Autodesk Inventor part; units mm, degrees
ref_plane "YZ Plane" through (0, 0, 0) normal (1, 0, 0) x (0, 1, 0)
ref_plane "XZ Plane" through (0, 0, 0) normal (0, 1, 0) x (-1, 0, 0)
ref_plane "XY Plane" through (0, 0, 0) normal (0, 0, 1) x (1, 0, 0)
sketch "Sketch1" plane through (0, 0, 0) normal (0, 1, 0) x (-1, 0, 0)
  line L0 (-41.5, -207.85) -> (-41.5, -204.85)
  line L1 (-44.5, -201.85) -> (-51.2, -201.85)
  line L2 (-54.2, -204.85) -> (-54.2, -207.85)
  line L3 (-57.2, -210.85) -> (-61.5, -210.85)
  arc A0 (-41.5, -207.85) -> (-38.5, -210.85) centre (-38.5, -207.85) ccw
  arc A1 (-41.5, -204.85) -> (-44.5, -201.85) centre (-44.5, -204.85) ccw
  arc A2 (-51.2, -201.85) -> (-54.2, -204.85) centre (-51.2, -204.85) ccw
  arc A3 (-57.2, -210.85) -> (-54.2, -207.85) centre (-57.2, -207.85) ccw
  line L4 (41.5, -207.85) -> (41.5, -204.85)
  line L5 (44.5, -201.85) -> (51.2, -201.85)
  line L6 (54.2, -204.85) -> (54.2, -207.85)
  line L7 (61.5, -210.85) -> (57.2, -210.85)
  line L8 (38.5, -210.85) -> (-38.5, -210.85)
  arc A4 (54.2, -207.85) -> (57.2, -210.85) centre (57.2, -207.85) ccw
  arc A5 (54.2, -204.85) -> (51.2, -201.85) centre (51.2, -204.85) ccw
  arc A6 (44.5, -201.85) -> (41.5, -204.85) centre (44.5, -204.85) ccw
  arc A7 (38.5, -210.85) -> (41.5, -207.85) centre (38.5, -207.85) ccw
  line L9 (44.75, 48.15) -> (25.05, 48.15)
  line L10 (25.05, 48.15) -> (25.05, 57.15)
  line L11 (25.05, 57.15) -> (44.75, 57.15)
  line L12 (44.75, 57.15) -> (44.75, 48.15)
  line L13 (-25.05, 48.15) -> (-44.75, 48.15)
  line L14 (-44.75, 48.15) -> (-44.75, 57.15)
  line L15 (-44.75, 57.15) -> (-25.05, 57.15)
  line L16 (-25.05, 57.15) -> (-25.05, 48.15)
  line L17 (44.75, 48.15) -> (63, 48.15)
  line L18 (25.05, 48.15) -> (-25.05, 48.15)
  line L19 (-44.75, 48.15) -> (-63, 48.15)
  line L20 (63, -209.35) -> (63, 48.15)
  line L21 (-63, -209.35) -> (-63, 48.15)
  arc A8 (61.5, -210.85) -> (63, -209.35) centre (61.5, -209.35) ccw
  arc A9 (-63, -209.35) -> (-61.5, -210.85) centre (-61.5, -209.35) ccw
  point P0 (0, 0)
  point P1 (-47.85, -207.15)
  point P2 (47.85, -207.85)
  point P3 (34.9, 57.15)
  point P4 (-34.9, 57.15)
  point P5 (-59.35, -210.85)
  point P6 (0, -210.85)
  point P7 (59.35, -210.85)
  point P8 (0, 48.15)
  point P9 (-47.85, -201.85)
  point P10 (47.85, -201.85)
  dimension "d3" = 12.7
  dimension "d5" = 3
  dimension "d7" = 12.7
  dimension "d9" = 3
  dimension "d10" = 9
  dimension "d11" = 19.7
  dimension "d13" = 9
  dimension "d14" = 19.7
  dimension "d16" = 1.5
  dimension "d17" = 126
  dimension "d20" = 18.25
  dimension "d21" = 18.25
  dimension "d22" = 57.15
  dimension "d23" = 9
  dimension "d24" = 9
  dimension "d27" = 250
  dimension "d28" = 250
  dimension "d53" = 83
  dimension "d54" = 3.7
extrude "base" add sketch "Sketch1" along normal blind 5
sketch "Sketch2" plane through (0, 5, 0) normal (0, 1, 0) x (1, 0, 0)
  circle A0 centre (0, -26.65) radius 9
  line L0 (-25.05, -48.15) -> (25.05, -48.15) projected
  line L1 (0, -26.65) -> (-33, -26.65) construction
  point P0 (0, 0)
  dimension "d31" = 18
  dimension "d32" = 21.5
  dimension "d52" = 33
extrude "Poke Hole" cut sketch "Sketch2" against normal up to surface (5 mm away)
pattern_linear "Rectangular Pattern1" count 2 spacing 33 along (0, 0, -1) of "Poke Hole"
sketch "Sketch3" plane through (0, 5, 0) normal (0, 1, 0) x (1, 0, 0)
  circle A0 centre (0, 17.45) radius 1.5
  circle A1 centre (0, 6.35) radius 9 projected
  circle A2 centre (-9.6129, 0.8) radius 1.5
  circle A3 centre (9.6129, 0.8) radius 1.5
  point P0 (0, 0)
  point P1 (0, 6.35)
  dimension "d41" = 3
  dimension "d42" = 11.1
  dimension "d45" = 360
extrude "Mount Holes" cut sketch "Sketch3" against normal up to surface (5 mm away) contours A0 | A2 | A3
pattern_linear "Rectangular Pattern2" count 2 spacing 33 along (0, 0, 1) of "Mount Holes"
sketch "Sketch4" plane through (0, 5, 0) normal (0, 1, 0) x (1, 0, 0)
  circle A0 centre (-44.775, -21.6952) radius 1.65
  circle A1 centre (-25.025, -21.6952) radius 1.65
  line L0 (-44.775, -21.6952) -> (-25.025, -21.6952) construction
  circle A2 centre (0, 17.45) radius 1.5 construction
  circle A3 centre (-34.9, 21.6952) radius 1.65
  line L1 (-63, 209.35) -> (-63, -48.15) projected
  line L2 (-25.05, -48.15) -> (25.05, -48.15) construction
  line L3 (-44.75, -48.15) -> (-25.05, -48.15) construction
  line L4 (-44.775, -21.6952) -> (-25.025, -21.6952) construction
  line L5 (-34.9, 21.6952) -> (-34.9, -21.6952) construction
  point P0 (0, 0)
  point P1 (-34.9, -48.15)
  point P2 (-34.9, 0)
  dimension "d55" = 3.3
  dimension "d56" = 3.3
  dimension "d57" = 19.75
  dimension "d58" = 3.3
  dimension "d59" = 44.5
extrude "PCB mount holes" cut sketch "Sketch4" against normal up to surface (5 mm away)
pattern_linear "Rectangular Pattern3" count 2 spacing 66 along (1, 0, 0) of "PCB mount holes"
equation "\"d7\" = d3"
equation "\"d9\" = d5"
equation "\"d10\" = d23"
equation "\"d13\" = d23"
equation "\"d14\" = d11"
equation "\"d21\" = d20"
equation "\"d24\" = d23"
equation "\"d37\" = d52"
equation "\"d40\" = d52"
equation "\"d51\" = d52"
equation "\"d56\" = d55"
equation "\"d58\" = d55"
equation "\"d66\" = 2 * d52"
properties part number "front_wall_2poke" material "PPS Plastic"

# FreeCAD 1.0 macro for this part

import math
import FreeCAD as App
import Part
import Sketcher

V = App.Vector
Q = App.Units.Quantity

doc = App.newDocument("Part")
params = doc.addObject("Spreadsheet::Sheet", "Params")
for row, (alias, value) in enumerate([
    ("sketch1_radius", "3 mm"),
    ("sketch1_radius2", "1.5 mm"),
    ("sketch1_height", "3 mm"),
    ("sketch1_height2", "9 mm"),
    ("sketch1_width", "19.7 mm"),
    ("pad1_length", "5 mm"),
    ("sketch2_diameter", "18 mm"),
    ("pocket1_length", "5 mm"),
    ("linearpattern_pitch", "33 mm"),
    ("sketch3_diameter", "3 mm"),
    ("pocket2_length", "5 mm"),
    ("linearpattern2_pitch", "33 mm"),
    ("sketch4_diameter", "3.3 mm"),
    ("pocket3_length", "5 mm"),
    ("linearpattern3_pitch", "66 mm"),
], start=1):
    params.set(f"A{row}", alias)
    params.set(f"B{row}", "=" + value)
    params.setAlias(f"B{row}", alias)

body = doc.addObject("PartDesign::Body", "Body")

# Sketch on XZ plane
sketch1 = body.newObject("Sketcher::SketchObject", "Sketch")
sketch1.AttachmentSupport = (doc.getObject("XZ_Plane"), [""])
sketch1.MapMode = "FlatFace"
sketch1.addGeometry([
    Part.LineSegment(V(41.5, -204.8, 0), V(41.5, -207.8, 0)),  # 0
    Part.ArcOfCircle(Part.Circle(V(38.5, -207.8, 0), V(0, 0, 1), 3), math.radians(-90), math.radians(0)),  # 1
    Part.LineSegment(V(38.5, -210.8, 0), V(-38.5, -210.8, 0)),  # 2
    Part.ArcOfCircle(Part.Circle(V(-38.5, -207.8, 0), V(0, 0, 1), 3), math.radians(180), math.radians(270)),  # 3
    Part.LineSegment(V(-41.5, -207.8, 0), V(-41.5, -204.8, 0)),  # 4
    Part.ArcOfCircle(Part.Circle(V(-44.5, -204.8, 0), V(0, 0, 1), 3), math.radians(0), math.radians(90)),  # 5
    Part.LineSegment(V(-44.5, -201.8, 0), V(-51.2, -201.8, 0)),  # 6
    Part.ArcOfCircle(Part.Circle(V(-51.2, -204.8, 0), V(0, 0, 1), 3), math.radians(90), math.radians(180)),  # 7
    Part.LineSegment(V(-54.2, -204.8, 0), V(-54.2, -207.8, 0)),  # 8
    Part.ArcOfCircle(Part.Circle(V(-57.2, -207.8, 0), V(0, 0, 1), 3), math.radians(-90), math.radians(0)),  # 9
    Part.LineSegment(V(-57.2, -210.8, 0), V(-61.5, -210.8, 0)),  # 10
    Part.ArcOfCircle(Part.Circle(V(-61.5, -209.3, 0), V(0, 0, 1), 1.5), math.radians(180), math.radians(270)),  # 11
    Part.LineSegment(V(-63, -209.3, 0), V(-63, 48.1, 0)),  # 12
    Part.LineSegment(V(-63, 48.1, 0), V(-44.8, 48.1, 0)),  # 13
    Part.LineSegment(V(-44.8, 48.1, 0), V(-44.8, 57.1, 0)),  # 14
    Part.LineSegment(V(-44.8, 57.1, 0), V(-25.1, 57.1, 0)),  # 15
    Part.LineSegment(V(-25.1, 57.1, 0), V(-25.1, 48.1, 0)),  # 16
    Part.LineSegment(V(-25.1, 48.1, 0), V(25.1, 48.1, 0)),  # 17
    Part.LineSegment(V(25.1, 48.1, 0), V(25.1, 57.1, 0)),  # 18
    Part.LineSegment(V(25.1, 57.1, 0), V(44.8, 57.1, 0)),  # 19
    Part.LineSegment(V(44.8, 57.1, 0), V(44.8, 48.1, 0)),  # 20
    Part.LineSegment(V(44.8, 48.1, 0), V(63, 48.1, 0)),  # 21
    Part.LineSegment(V(63, 48.1, 0), V(63, -209.3, 0)),  # 22
    Part.ArcOfCircle(Part.Circle(V(61.5, -209.3, 0), V(0, 0, 1), 1.5), math.radians(-90), math.radians(0)),  # 23
    Part.LineSegment(V(61.5, -210.8, 0), V(57.2, -210.8, 0)),  # 24
    Part.ArcOfCircle(Part.Circle(V(57.2, -207.8, 0), V(0, 0, 1), 3), math.radians(180), math.radians(270)),  # 25
    Part.LineSegment(V(54.2, -207.8, 0), V(54.2, -204.8, 0)),  # 26
    Part.ArcOfCircle(Part.Circle(V(51.2, -204.8, 0), V(0, 0, 1), 3), math.radians(0), math.radians(90)),  # 27
    Part.LineSegment(V(51.2, -201.8, 0), V(44.5, -201.8, 0)),  # 28
    Part.ArcOfCircle(Part.Circle(V(44.5, -204.8, 0), V(0, 0, 1), 3), math.radians(90), math.radians(180)),  # 29
], False)
sketch1.addConstraint([
    Sketcher.Constraint("Tangent", 0, 2, 1, 2),
    Sketcher.Constraint("Tangent", 1, 1, 2, 1),
    Sketcher.Constraint("Tangent", 2, 2, 3, 2),
    Sketcher.Constraint("Tangent", 3, 1, 4, 1),
    Sketcher.Constraint("Tangent", 4, 2, 5, 1),
    Sketcher.Constraint("Tangent", 5, 2, 6, 1),
    Sketcher.Constraint("Tangent", 6, 2, 7, 1),
    Sketcher.Constraint("Tangent", 7, 2, 8, 1),
    Sketcher.Constraint("Tangent", 8, 2, 9, 2),
    Sketcher.Constraint("Tangent", 9, 1, 10, 1),
    Sketcher.Constraint("Tangent", 10, 2, 11, 2),
    Sketcher.Constraint("Tangent", 11, 1, 12, 1),
    Sketcher.Constraint("Coincident", 12, 2, 13, 1),
    Sketcher.Constraint("Coincident", 13, 2, 14, 1),
    Sketcher.Constraint("Coincident", 14, 2, 15, 1),
    Sketcher.Constraint("Coincident", 15, 2, 16, 1),
    Sketcher.Constraint("Coincident", 16, 2, 17, 1),
    Sketcher.Constraint("Coincident", 17, 2, 18, 1),
    Sketcher.Constraint("Coincident", 18, 2, 19, 1),
    Sketcher.Constraint("Coincident", 19, 2, 20, 1),
    Sketcher.Constraint("Coincident", 20, 2, 21, 1),
    Sketcher.Constraint("Coincident", 21, 2, 22, 1),
    Sketcher.Constraint("Tangent", 22, 2, 23, 2),
    Sketcher.Constraint("Tangent", 23, 1, 24, 1),
    Sketcher.Constraint("Tangent", 24, 2, 25, 2),
    Sketcher.Constraint("Tangent", 25, 1, 26, 1),
    Sketcher.Constraint("Tangent", 26, 2, 27, 1),
    Sketcher.Constraint("Tangent", 27, 2, 28, 1),
    Sketcher.Constraint("Tangent", 28, 2, 29, 1),
    Sketcher.Constraint("Tangent", 29, 2, 0, 1),
    Sketcher.Constraint("Vertical", 0),
    Sketcher.Constraint("Horizontal", 2),
    Sketcher.Constraint("Vertical", 4),
    Sketcher.Constraint("Horizontal", 6),
    Sketcher.Constraint("Vertical", 8),
    Sketcher.Constraint("Horizontal", 10),
    Sketcher.Constraint("Vertical", 12),
    Sketcher.Constraint("Horizontal", 13),
    Sketcher.Constraint("Vertical", 14),
    Sketcher.Constraint("Horizontal", 15),
    Sketcher.Constraint("Vertical", 16),
    Sketcher.Constraint("Horizontal", 17),
    Sketcher.Constraint("Vertical", 18),
    Sketcher.Constraint("Horizontal", 19),
    Sketcher.Constraint("Vertical", 20),
    Sketcher.Constraint("Horizontal", 21),
    Sketcher.Constraint("Vertical", 22),
    Sketcher.Constraint("Horizontal", 24),
    Sketcher.Constraint("Vertical", 26),
    Sketcher.Constraint("Horizontal", 28),
    Sketcher.Constraint("Equal", 1, 3),
    Sketcher.Constraint("Equal", 3, 5),
    Sketcher.Constraint("Equal", 5, 7),
    Sketcher.Constraint("Equal", 7, 9),
    Sketcher.Constraint("Equal", 11, 23),
    Sketcher.Constraint("Equal", 9, 25),
    Sketcher.Constraint("Equal", 25, 27),
    Sketcher.Constraint("Equal", 27, 29),
    Sketcher.Constraint("Symmetric", 11, 3, 23, 3, -2),
    Sketcher.Constraint("Symmetric", 7, 3, 27, 3, -2),
    Sketcher.Constraint("Symmetric", 15, 2, 18, 2, -2),
    Sketcher.Constraint("Symmetric", 13, 2, 20, 2, -2),
    Sketcher.Constraint("Horizontal", 3, 3, 9, 3),
    Sketcher.Constraint("Horizontal", 13, 2, 16, 2),
    Sketcher.Constraint("Equal", 6, 28),
    Sketcher.Constraint("Radius", 1, Q("3 mm")),
    Sketcher.Constraint("Radius", 11, Q("1.5 mm")),
    Sketcher.Constraint("DistanceY", 0, 2, 0, 1, Q("3 mm")),
    Sketcher.Constraint("DistanceY", 14, 1, 14, 2, Q("9 mm")),
    Sketcher.Constraint("DistanceX", 15, 1, 15, 2, Q("19.7 mm")),
    Sketcher.Constraint("DistanceX", 5, 3, 1, 3, Q("83 mm")),
    Sketcher.Constraint("DistanceY", 6, 2, 12, 2, Q("250 mm")),
    Sketcher.Constraint("DistanceX", 13, 1, 13, 2, Q("18.25 mm")),
    Sketcher.Constraint("DistanceX", 7, 3, 3, 3, Q("12.7 mm")),
    Sketcher.Constraint("DistanceY", -1, 1, 14, 2, Q("57.15 mm")),
    Sketcher.Constraint("DistanceX", 10, 2, 10, 1, Q("4.3 mm")),
])
sketch1.setExpression("Constraints[65]", "Params.sketch1_radius")
sketch1.setExpression("Constraints[66]", "Params.sketch1_radius2")
sketch1.setExpression("Constraints[67]", "Params.sketch1_height")
sketch1.setExpression("Constraints[68]", "Params.sketch1_height2")
sketch1.setExpression("Constraints[69]", "Params.sketch1_width")
pad1 = body.newObject("PartDesign::Pad", "Pad")
pad1.Profile = sketch1
pad1.setExpression("Length", "Params.pad1_length")
pad1.Reversed = True

# Sketch on XZ plane
sketch2 = body.newObject("Sketcher::SketchObject", "Sketch001")
sketch2.AttachmentSupport = (doc.getObject("XZ_Plane"), [""])
sketch2.MapMode = "FlatFace"
sketch2.AttachmentOffset = App.Placement(V(0, 0, -5), App.Rotation())
sketch2.addGeometry(Part.Circle(V(0, 27, 0), V(0, 0, 1), 9), False)
sketch2.addConstraint([
    Sketcher.Constraint("PointOnObject", 0, 3, -2),
    Sketcher.Constraint("Diameter", 0, Q("18 mm")),
    Sketcher.Constraint("DistanceY", -1, 1, 0, 3, Q("26.65 mm")),
])
sketch2.setExpression("Constraints[1]", "Params.sketch2_diameter")
pocket1 = body.newObject("PartDesign::Pocket", "Pocket")
pocket1.Profile = sketch2
pocket1.setExpression("Length", "Params.pocket1_length")
pocket1.Reversed = True
doc.recompute()

linearpattern = body.newObject("PartDesign::LinearPattern", "LinearPattern")
linearpattern.Originals = [pocket1]
linearpattern.Direction = (doc.getObject("Z_Axis"), [""])
linearpattern.Mode = "offset"
linearpattern.setExpression("Offset", "Params.linearpattern_pitch")
linearpattern.Occurrences = 2
linearpattern.Reversed = True
body.Tip = linearpattern

# Sketch on XZ plane
sketch3 = body.newObject("Sketcher::SketchObject", "Sketch002")
sketch3.AttachmentSupport = (doc.getObject("XZ_Plane"), [""])
sketch3.MapMode = "FlatFace"
sketch3.AttachmentOffset = App.Placement(V(0, 0, -5), App.Rotation())
sketch3.addGeometry([
    Part.Circle(V(0, -17.4, 0), V(0, 0, 1), 1.5),
    Part.Circle(V(-9.6, -0.8, 0), V(0, 0, 1), 1.5),
    Part.Circle(V(9.6, -0.8, 0), V(0, 0, 1), 1.5),
], False)
sketch3.addConstraint([
    Sketcher.Constraint("Equal", 0, 1),
    Sketcher.Constraint("Equal", 1, 2),
    Sketcher.Constraint("Symmetric", 1, 3, 2, 3, -2),
    Sketcher.Constraint("PointOnObject", 0, 3, -2),
    Sketcher.Constraint("Diameter", 0, Q("3 mm")),
    Sketcher.Constraint("DistanceY", 1, 3, -1, 1, Q("0.8 mm")),
    Sketcher.Constraint("DistanceY", 0, 3, -1, 1, Q("17.45 mm")),
    Sketcher.Constraint("DistanceX", 1, 3, -1, 1, Q("9.613 mm")),
])
sketch3.setExpression("Constraints[4]", "Params.sketch3_diameter")
pocket2 = body.newObject("PartDesign::Pocket", "Pocket001")
pocket2.Profile = sketch3
pocket2.setExpression("Length", "Params.pocket2_length")
pocket2.Reversed = True
doc.recompute()

linearpattern2 = body.newObject("PartDesign::LinearPattern", "LinearPattern001")
linearpattern2.Originals = [pocket2]
linearpattern2.Direction = (doc.getObject("Z_Axis"), [""])
linearpattern2.Mode = "offset"
linearpattern2.setExpression("Offset", "Params.linearpattern2_pitch")
linearpattern2.Occurrences = 2
body.Tip = linearpattern2

# Sketch on XZ plane
sketch4 = body.newObject("Sketcher::SketchObject", "Sketch003")
sketch4.AttachmentSupport = (doc.getObject("XZ_Plane"), [""])
sketch4.MapMode = "FlatFace"
sketch4.AttachmentOffset = App.Placement(V(0, 0, -5), App.Rotation())
sketch4.addGeometry([
    Part.Circle(V(-44.8, 21.7, 0), V(0, 0, 1), 1.6),
    Part.Circle(V(-25, 21.7, 0), V(0, 0, 1), 1.6),
    Part.Circle(V(-34.9, -21.7, 0), V(0, 0, 1), 1.6),
], False)
sketch4.addConstraint([
    Sketcher.Constraint("Equal", 0, 1),
    Sketcher.Constraint("Equal", 1, 2),
    Sketcher.Constraint("Horizontal", 0, 3, 1, 3),
    Sketcher.Constraint("Diameter", 0, Q("3.3 mm")),
    Sketcher.Constraint("DistanceX", 0, 3, 1, 3, Q("19.75 mm")),
    Sketcher.Constraint("DistanceX", 2, 3, -1, 1, Q("34.9 mm")),
    Sketcher.Constraint("DistanceX", 0, 3, -1, 1, Q("44.775 mm")),
    Sketcher.Constraint("DistanceY", -1, 1, 0, 3, Q("21.6952 mm")),
    Sketcher.Constraint("DistanceY", 2, 3, -1, 1, Q("21.6952 mm")),
])
sketch4.setExpression("Constraints[3]", "Params.sketch4_diameter")
pocket3 = body.newObject("PartDesign::Pocket", "Pocket002")
pocket3.Profile = sketch4
pocket3.setExpression("Length", "Params.pocket3_length")
pocket3.Reversed = True
doc.recompute()

linearpattern3 = body.newObject("PartDesign::LinearPattern", "LinearPattern002")
linearpattern3.Originals = [pocket3]
linearpattern3.Direction = (doc.getObject("X_Axis"), [""])
linearpattern3.Mode = "offset"
linearpattern3.setExpression("Offset", "Params.linearpattern3_pitch")
linearpattern3.Occurrences = 2
body.Tip = linearpattern3

doc.recompute()
